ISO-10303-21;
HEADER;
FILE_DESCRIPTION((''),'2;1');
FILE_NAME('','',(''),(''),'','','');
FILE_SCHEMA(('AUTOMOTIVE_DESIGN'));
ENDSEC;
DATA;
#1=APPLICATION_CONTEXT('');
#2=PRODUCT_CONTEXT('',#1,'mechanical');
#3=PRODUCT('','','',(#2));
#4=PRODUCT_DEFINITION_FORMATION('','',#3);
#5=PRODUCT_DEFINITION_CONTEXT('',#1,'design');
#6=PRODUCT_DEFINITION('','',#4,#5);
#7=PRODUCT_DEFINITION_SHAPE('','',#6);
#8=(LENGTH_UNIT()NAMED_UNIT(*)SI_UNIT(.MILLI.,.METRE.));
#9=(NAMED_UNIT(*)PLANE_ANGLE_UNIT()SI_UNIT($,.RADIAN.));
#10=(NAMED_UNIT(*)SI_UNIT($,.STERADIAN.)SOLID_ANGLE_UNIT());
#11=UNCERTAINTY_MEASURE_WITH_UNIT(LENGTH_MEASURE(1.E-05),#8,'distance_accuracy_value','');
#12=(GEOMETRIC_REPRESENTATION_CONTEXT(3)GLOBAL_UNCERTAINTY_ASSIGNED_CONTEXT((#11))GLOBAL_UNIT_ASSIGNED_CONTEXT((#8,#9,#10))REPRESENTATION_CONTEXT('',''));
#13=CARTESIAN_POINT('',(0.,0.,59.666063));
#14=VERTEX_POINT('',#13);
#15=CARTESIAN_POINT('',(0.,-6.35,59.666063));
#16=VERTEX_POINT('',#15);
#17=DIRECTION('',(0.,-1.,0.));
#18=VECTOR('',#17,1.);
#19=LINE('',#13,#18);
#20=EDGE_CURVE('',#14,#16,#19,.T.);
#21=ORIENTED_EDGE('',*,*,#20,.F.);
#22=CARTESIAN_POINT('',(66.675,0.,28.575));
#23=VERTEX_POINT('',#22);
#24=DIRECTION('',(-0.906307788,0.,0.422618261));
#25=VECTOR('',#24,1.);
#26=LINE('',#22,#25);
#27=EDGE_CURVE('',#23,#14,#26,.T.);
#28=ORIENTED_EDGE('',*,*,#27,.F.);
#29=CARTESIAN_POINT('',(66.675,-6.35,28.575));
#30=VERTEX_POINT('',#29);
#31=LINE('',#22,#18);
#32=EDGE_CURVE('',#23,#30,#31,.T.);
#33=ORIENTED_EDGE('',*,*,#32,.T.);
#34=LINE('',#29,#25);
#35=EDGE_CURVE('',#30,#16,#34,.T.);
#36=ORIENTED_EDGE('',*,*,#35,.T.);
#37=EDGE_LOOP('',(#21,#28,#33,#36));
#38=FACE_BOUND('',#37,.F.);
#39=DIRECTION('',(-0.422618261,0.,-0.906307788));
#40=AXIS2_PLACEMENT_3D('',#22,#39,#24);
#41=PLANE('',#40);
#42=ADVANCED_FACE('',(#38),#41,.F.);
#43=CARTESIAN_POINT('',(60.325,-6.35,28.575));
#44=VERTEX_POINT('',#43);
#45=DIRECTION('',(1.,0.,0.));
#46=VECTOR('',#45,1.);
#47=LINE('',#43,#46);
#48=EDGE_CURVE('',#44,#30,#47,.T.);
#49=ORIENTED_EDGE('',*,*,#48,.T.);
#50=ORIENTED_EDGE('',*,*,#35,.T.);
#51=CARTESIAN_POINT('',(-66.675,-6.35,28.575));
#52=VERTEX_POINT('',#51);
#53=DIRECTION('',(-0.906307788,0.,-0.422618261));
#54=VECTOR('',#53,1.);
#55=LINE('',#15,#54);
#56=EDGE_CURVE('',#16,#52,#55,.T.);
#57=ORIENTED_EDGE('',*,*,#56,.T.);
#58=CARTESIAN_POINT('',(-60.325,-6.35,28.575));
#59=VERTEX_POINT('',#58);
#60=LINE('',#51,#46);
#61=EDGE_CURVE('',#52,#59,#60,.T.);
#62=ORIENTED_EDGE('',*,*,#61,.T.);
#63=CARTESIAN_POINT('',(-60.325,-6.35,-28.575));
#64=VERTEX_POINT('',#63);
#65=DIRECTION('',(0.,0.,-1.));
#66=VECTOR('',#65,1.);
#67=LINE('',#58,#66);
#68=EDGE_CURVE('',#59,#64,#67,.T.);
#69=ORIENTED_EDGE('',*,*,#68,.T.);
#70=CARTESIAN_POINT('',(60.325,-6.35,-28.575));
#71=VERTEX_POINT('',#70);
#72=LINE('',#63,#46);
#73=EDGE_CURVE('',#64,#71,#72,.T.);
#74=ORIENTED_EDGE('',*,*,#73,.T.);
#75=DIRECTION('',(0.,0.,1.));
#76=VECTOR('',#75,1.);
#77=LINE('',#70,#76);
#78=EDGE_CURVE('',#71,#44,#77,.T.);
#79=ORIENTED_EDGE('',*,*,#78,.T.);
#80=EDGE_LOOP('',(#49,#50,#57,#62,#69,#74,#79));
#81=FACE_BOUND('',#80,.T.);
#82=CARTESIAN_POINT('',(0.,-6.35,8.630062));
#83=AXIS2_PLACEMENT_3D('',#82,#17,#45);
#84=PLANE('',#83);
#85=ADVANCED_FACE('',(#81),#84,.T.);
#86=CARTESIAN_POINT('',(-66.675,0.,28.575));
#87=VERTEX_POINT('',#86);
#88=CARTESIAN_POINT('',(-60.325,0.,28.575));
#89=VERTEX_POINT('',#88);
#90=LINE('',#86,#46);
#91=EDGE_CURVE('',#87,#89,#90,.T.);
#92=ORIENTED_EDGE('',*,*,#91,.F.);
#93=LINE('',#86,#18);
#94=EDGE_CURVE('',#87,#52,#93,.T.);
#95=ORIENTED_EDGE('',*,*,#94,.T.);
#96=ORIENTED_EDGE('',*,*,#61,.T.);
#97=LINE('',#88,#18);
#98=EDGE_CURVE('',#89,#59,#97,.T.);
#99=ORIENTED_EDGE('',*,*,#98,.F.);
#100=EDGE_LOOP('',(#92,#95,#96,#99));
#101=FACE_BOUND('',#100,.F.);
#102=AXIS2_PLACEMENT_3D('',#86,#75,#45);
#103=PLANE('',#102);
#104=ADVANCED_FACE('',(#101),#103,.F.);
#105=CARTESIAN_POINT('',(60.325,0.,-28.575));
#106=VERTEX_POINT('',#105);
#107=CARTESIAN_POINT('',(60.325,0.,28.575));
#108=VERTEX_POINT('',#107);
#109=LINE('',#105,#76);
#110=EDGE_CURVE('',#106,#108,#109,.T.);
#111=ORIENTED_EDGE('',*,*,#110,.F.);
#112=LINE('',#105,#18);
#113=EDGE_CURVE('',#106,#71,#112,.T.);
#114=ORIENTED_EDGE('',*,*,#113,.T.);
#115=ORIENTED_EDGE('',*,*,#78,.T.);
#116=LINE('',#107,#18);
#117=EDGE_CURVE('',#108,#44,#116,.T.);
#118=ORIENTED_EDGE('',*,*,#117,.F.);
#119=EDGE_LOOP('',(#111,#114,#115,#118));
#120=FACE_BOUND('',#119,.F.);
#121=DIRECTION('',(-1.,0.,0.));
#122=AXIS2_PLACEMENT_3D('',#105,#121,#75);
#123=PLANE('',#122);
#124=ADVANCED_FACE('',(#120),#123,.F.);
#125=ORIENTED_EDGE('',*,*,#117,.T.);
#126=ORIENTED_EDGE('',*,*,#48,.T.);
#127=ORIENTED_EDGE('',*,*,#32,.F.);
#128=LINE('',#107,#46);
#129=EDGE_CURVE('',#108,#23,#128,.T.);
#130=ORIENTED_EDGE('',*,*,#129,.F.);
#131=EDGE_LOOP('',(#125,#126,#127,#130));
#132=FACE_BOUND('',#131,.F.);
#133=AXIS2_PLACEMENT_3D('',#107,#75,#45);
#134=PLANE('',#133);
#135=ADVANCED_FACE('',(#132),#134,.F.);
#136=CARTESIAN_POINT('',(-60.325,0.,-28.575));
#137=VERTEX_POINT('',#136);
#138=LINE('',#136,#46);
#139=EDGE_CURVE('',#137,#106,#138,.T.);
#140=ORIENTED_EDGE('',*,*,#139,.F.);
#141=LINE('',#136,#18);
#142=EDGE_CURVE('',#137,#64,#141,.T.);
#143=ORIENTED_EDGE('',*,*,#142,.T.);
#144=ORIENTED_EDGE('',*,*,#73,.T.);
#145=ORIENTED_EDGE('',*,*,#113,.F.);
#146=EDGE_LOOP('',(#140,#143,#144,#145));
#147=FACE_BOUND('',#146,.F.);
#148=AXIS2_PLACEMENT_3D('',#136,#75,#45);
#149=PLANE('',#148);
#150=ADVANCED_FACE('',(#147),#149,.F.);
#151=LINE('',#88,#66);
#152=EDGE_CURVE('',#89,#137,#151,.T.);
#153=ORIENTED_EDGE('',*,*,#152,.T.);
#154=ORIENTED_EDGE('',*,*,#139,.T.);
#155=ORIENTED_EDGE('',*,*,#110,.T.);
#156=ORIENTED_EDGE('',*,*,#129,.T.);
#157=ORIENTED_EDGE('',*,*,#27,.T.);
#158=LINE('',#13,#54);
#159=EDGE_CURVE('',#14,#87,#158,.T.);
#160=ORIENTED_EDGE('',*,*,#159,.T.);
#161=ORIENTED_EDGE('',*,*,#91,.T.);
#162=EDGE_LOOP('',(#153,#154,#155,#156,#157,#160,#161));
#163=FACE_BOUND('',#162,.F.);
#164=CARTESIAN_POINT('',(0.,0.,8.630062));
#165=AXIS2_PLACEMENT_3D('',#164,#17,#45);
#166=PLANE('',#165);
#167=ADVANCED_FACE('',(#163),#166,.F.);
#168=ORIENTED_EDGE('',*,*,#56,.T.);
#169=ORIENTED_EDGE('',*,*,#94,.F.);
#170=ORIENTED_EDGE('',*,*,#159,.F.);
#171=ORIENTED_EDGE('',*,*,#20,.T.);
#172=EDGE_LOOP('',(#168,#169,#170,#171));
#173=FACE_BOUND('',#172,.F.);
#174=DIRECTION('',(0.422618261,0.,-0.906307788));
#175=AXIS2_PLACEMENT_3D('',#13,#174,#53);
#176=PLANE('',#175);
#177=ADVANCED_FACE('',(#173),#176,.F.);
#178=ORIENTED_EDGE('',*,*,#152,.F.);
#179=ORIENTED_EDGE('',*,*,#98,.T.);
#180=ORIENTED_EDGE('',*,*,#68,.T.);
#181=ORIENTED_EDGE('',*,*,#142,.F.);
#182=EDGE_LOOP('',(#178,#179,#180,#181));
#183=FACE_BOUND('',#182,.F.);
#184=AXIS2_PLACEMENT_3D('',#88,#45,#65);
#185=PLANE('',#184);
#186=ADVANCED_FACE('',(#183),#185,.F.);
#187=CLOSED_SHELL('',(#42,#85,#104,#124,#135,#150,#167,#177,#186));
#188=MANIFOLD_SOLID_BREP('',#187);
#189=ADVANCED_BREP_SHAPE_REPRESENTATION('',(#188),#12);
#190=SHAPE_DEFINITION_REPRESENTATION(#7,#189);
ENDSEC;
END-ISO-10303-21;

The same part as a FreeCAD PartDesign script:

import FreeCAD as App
import Part
import Sketcher
from FreeCAD import Vector
Q = App.Units.Quantity

doc = App.newDocument("Part")
body = doc.addObject("PartDesign::Body", "Body")

# Sketch on XZ plane
sketch1 = body.newObject("Sketcher::SketchObject", "Sketch")
sketch1.AttachmentSupport = (doc.getObject("XZ_Plane"), [""])
sketch1.MapMode = "FlatFace"
sketch1.addGeometry([
    Part.LineSegment(Vector(-60.325, -28.575, 0), Vector(60.325, -28.575, 0)),  # 0
    Part.LineSegment(Vector(60.325, -28.575, 0), Vector(60.325, 28.575, 0)),  # 1
    Part.LineSegment(Vector(60.325, 28.575, 0), Vector(66.675, 28.575, 0)),  # 2
    Part.LineSegment(Vector(66.675, 28.575, 0), Vector(0, 59.666063, 0)),  # 3
    Part.LineSegment(Vector(0, 59.666063, 0), Vector(-66.675, 28.575, 0)),  # 4
    Part.LineSegment(Vector(-66.675, 28.575, 0), Vector(-60.325, 28.575, 0)),  # 5
    Part.LineSegment(Vector(-60.325, 28.575, 0), Vector(-60.325, -28.575, 0)),  # 6
], False)
sketch1.addConstraint([
    Sketcher.Constraint("Coincident", 0, 2, 1, 1),
    Sketcher.Constraint("Coincident", 1, 2, 2, 1),
    Sketcher.Constraint("Coincident", 2, 2, 3, 1),
    Sketcher.Constraint("Coincident", 3, 2, 4, 1),
    Sketcher.Constraint("Coincident", 4, 2, 5, 1),
    Sketcher.Constraint("Coincident", 5, 2, 6, 1),
    Sketcher.Constraint("Coincident", 6, 2, 0, 1),
    Sketcher.Constraint("Horizontal", 0),
    Sketcher.Constraint("Vertical", 1),
    Sketcher.Constraint("Horizontal", 2),
    Sketcher.Constraint("Horizontal", 5),
    Sketcher.Constraint("Vertical", 6),
    Sketcher.Constraint("Symmetric", 0, 2, 5, 2, -1, 1),
    Sketcher.Constraint("Symmetric", 2, 2, 4, 2, -2),
    Sketcher.Constraint("PointOnObject", 3, 2, -2),
    Sketcher.Constraint("Angle", 3, Q("155 deg")),
    Sketcher.Constraint("DistanceX", 4, 2, 1, 2, Q("5 in")),
    Sketcher.Constraint("DistanceX", 0, 1, 0, 2, Q("4.75 in")),
    Sketcher.Constraint("DistanceY", 1, 1, 1, 2, Q("2.25 in")),
])
pad1 = body.newObject("PartDesign::Pad", "Pad")
pad1.Profile = sketch1
pad1.Length = Q("0.25 in")

doc.recompute()
